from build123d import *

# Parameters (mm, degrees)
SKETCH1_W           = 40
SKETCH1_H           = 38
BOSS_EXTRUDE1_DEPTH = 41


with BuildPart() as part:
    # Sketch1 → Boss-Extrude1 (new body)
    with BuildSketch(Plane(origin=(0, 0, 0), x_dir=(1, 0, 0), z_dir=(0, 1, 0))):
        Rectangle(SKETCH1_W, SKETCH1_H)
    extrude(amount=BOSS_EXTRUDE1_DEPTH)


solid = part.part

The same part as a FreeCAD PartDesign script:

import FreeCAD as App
import Part
import Sketcher
Q = App.Units.Quantity


def add_polygon(sketch, points):
    """Adds a closed chain of lines whose ends are joined by coincident constraints."""
    first, n = sketch.GeometryCount, len(points)
    for a, b in zip(points, points[1:] + points[:1]):
        sketch.addGeometry(Part.LineSegment(App.Vector(*a, 0), App.Vector(*b, 0)), False)
    for i in range(n):
        sketch.addConstraint(Sketcher.Constraint("Coincident", first + i, 2, first + (i + 1) % n, 1))

doc = App.newDocument("Part")
body = doc.addObject("PartDesign::Body", "Body")

sketch1 = body.newObject("Sketcher::SketchObject", "Sketch")
sketch1.AttachmentSupport = (doc.getObject("XZ_Plane"), [""])
sketch1.MapMode = "FlatFace"
add_polygon(sketch1, [(-20, -19), (-20, 19), (20, 19), (20, -19)])
sketch1.addConstraint([
    Sketcher.Constraint("Vertical", 0),
    Sketcher.Constraint("Horizontal", 1),
    Sketcher.Constraint("Vertical", 2),
    Sketcher.Constraint("Horizontal", 3),
    Sketcher.Constraint("Symmetric", 0, 2, 2, 2, -1, 1),
    Sketcher.Constraint("DistanceX", 1, 1, 1, 2, Q("40 mm")),
    Sketcher.Constraint("DistanceY", 0, 1, 0, 2, Q("38 mm")),
])
pad1 = body.newObject("PartDesign::Pad", "Pad")
pad1.Profile = sketch1
pad1.Length = 41
pad1.Reversed = True

doc.recompute()
